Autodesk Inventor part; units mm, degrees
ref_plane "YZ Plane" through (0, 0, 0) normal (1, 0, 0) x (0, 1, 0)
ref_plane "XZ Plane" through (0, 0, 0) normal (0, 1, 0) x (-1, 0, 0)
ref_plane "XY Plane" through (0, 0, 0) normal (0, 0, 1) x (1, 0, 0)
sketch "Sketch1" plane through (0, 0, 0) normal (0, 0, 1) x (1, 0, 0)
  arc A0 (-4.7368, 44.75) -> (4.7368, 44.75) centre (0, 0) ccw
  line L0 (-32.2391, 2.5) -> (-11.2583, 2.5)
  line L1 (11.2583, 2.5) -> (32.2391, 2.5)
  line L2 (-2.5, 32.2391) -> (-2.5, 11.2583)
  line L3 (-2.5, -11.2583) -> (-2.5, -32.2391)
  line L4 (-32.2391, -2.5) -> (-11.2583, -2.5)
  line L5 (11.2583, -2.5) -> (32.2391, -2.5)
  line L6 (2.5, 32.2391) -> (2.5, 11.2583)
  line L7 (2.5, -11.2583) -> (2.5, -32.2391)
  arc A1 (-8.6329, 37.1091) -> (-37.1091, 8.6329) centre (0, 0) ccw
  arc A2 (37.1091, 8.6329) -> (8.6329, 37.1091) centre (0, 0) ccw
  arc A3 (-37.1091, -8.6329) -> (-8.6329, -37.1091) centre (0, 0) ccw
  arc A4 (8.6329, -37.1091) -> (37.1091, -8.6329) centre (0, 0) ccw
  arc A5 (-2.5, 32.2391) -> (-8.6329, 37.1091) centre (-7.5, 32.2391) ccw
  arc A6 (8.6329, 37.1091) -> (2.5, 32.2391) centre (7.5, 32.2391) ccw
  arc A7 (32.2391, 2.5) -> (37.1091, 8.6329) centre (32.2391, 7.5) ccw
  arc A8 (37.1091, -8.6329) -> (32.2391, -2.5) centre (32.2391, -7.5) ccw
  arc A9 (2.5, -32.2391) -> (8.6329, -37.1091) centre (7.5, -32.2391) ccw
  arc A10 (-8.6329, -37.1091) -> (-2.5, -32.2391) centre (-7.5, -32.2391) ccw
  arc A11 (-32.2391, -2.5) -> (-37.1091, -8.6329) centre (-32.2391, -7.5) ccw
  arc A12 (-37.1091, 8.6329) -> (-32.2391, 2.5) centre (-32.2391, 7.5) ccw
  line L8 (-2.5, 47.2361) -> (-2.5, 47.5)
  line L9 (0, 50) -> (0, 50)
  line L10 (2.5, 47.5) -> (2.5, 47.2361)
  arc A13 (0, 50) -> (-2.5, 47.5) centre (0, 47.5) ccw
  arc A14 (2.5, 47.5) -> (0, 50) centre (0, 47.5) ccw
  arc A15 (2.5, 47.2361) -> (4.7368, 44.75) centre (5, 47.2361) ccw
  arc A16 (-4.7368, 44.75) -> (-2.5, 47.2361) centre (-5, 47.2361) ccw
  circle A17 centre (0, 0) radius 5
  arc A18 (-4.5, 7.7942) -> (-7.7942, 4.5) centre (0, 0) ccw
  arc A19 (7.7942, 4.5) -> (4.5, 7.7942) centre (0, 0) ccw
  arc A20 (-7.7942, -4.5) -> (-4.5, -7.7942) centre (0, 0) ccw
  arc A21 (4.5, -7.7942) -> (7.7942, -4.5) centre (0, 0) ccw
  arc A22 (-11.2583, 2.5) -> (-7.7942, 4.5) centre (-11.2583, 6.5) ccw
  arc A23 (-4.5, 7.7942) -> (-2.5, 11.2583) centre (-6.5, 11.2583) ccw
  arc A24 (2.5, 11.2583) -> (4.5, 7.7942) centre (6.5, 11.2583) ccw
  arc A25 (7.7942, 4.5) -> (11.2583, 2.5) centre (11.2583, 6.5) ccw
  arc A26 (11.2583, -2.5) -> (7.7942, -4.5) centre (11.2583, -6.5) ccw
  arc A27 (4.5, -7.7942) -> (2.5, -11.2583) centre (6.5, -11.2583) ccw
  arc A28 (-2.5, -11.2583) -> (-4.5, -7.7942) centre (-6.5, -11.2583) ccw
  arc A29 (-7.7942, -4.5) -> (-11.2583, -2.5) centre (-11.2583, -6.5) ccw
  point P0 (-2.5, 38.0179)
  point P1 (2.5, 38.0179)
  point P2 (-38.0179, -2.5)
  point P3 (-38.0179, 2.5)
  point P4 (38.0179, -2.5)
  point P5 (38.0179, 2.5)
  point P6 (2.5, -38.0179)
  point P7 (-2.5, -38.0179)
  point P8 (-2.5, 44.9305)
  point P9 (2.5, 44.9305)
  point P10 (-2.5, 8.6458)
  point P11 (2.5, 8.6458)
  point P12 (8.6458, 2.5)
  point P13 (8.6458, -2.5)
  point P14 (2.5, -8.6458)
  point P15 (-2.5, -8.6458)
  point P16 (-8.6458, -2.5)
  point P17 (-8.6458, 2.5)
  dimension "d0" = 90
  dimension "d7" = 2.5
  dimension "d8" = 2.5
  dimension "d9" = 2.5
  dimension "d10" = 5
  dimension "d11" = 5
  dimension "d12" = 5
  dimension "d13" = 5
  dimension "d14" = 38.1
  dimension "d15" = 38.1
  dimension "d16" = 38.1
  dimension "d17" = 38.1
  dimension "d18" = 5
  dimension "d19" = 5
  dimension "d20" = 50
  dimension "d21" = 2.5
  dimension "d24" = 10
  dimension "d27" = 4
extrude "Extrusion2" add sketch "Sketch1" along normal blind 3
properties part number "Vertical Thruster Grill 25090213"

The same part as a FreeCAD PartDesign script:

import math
import FreeCAD as App
import Part
import Sketcher

doc = App.newDocument("Part")
body = doc.addObject("PartDesign::Body", "Body")

sketch1 = body.newObject("Sketcher::SketchObject", "Sketch")
sketch1.AttachmentSupport = (doc.getObject("XY_Plane"), [""])
sketch1.MapMode = "FlatFace"
sketch1.addGeometry(Part.ArcOfCircle(Part.Circle(App.Vector(-5, 47.24, 0), App.Vector(0, 0, 1), 2.5), math.radians(-84), math.radians(0)), False)
sketch1.addGeometry(Part.ArcOfCircle(Part.Circle(App.Vector(0, 0, 0), App.Vector(0, 0, 1), 45), math.radians(96), math.radians(444)), False)
sketch1.addGeometry(Part.ArcOfCircle(Part.Circle(App.Vector(5, 47.24, 0), App.Vector(0, 0, 1), 2.5), math.radians(180), math.radians(264)), False)
sketch1.addGeometry(Part.LineSegment(App.Vector(2.5, 47.24, 0), App.Vector(2.5, 47.5, 0)), False)
sketch1.addGeometry(Part.ArcOfCircle(Part.Circle(App.Vector(0, 47.5, 0), App.Vector(0, 0, 1), 2.5), math.radians(0), math.radians(180)), False)
sketch1.addGeometry(Part.LineSegment(App.Vector(-2.5, 47.5, 0), App.Vector(-2.5, 47.24, 0)), False)
sketch1.addGeometry(Part.ArcOfCircle(Part.Circle(App.Vector(-6.5, -11.26, 0), App.Vector(0, 0, 1), 4), math.radians(0), math.radians(60)), False)
sketch1.addGeometry(Part.LineSegment(App.Vector(-2.5, -11.26, 0), App.Vector(-2.5, -32.24, 0)), False)
sketch1.addGeometry(Part.ArcOfCircle(Part.Circle(App.Vector(-7.5, -32.24, 0), App.Vector(0, 0, 1), 5), math.radians(-103), math.radians(0)), False)
sketch1.addGeometry(Part.ArcOfCircle(Part.Circle(App.Vector(0, 0, 0), App.Vector(0, 0, 1), 38.1), math.radians(-167), math.radians(-103)), False)
sketch1.addGeometry(Part.ArcOfCircle(Part.Circle(App.Vector(-32.24, -7.5, 0), App.Vector(0, 0, 1), 5), math.radians(90), math.radians(193)), False)
sketch1.addGeometry(Part.LineSegment(App.Vector(-32.24, -2.5, 0), App.Vector(-11.26, -2.5, 0)), False)
sketch1.addGeometry(Part.ArcOfCircle(Part.Circle(App.Vector(-11.26, -6.5, 0), App.Vector(0, 0, 1), 4), math.radians(30), math.radians(90)), False)
sketch1.addGeometry(Part.ArcOfCircle(Part.Circle(App.Vector(0, 0, 0), App.Vector(0, 0, 1), 9), math.radians(-150), math.radians(-120)), False)
sketch1.addGeometry(Part.ArcOfCircle(Part.Circle(App.Vector(11.26, -6.5, 0), App.Vector(0, 0, 1), 4), math.radians(90), math.radians(150)), False)
sketch1.addGeometry(Part.LineSegment(App.Vector(11.26, -2.5, 0), App.Vector(32.24, -2.5, 0)), False)
sketch1.addGeometry(Part.ArcOfCircle(Part.Circle(App.Vector(32.24, -7.5, 0), App.Vector(0, 0, 1), 5), math.radians(-13), math.radians(90)), False)
sketch1.addGeometry(Part.ArcOfCircle(Part.Circle(App.Vector(0, 0, 0), App.Vector(0, 0, 1), 38.1), math.radians(-77), math.radians(-13)), False)
sketch1.addGeometry(Part.ArcOfCircle(Part.Circle(App.Vector(7.5, -32.24, 0), App.Vector(0, 0, 1), 5), math.radians(180), math.radians(283)), False)
sketch1.addGeometry(Part.LineSegment(App.Vector(2.5, -32.24, 0), App.Vector(2.5, -11.26, 0)), False)
sketch1.addGeometry(Part.ArcOfCircle(Part.Circle(App.Vector(6.5, -11.26, 0), App.Vector(0, 0, 1), 4), math.radians(120), math.radians(180)), False)
sketch1.addGeometry(Part.ArcOfCircle(Part.Circle(App.Vector(0, 0, 0), App.Vector(0, 0, 1), 9), math.radians(-60), math.radians(-30)), False)
sketch1.addGeometry(Part.Circle(App.Vector(0, 0, 0), App.Vector(0, 0, 1), 5), False)
sketch1.addGeometry(Part.LineSegment(App.Vector(-11.26, 2.5, 0), App.Vector(-32.24, 2.5, 0)), False)
sketch1.addGeometry(Part.ArcOfCircle(Part.Circle(App.Vector(-32.24, 7.5, 0), App.Vector(0, 0, 1), 5), math.radians(167), math.radians(270)), False)
sketch1.addGeometry(Part.ArcOfCircle(Part.Circle(App.Vector(0, 0, 0), App.Vector(0, 0, 1), 38.1), math.radians(103), math.radians(167)), False)
sketch1.addGeometry(Part.ArcOfCircle(Part.Circle(App.Vector(-7.5, 32.24, 0), App.Vector(0, 0, 1), 5), math.radians(0), math.radians(103)), False)
sketch1.addGeometry(Part.LineSegment(App.Vector(-2.5, 32.24, 0), App.Vector(-2.5, 11.26, 0)), False)
sketch1.addGeometry(Part.ArcOfCircle(Part.Circle(App.Vector(-6.5, 11.26, 0), App.Vector(0, 0, 1), 4), math.radians(-60), math.radians(0)), False)
sketch1.addGeometry(Part.ArcOfCircle(Part.Circle(App.Vector(0, 0, 0), App.Vector(0, 0, 1), 9), math.radians(120), math.radians(150)), False)
sketch1.addGeometry(Part.ArcOfCircle(Part.Circle(App.Vector(-11.26, 6.5, 0), App.Vector(0, 0, 1), 4), math.radians(-90), math.radians(-30)), False)
sketch1.addGeometry(Part.LineSegment(App.Vector(32.24, 2.5, 0), App.Vector(11.26, 2.5, 0)), False)
sketch1.addGeometry(Part.ArcOfCircle(Part.Circle(App.Vector(11.26, 6.5, 0), App.Vector(0, 0, 1), 4), math.radians(-150), math.radians(-90)), False)
sketch1.addGeometry(Part.ArcOfCircle(Part.Circle(App.Vector(0, 0, 0), App.Vector(0, 0, 1), 9), math.radians(30), math.radians(60)), False)
sketch1.addGeometry(Part.ArcOfCircle(Part.Circle(App.Vector(6.5, 11.26, 0), App.Vector(0, 0, 1), 4), math.radians(180), math.radians(240)), False)
sketch1.addGeometry(Part.LineSegment(App.Vector(2.5, 11.26, 0), App.Vector(2.5, 32.24, 0)), False)
sketch1.addGeometry(Part.ArcOfCircle(Part.Circle(App.Vector(7.5, 32.24, 0), App.Vector(0, 0, 1), 5), math.radians(77), math.radians(180)), False)
sketch1.addGeometry(Part.ArcOfCircle(Part.Circle(App.Vector(0, 0, 0), App.Vector(0, 0, 1), 38.1), math.radians(13), math.radians(77)), False)
sketch1.addGeometry(Part.ArcOfCircle(Part.Circle(App.Vector(32.24, 7.5, 0), App.Vector(0, 0, 1), 5), math.radians(-90), math.radians(13)), False)
sketch1.addConstraint(Sketcher.Constraint("Tangent", 0, 1, 1, 1))
sketch1.addConstraint(Sketcher.Constraint("Tangent", 1, 2, 2, 2))
sketch1.addConstraint(Sketcher.Constraint("Tangent", 2, 1, 3, 1))
sketch1.addConstraint(Sketcher.Constraint("Tangent", 3, 2, 4, 1))
sketch1.addConstraint(Sketcher.Constraint("Tangent", 4, 2, 5, 1))
sketch1.addConstraint(Sketcher.Constraint("Tangent", 5, 2, 0, 2))
sketch1.addConstraint(Sketcher.Constraint("Tangent", 6, 1, 7, 1))
sketch1.addConstraint(Sketcher.Constraint("Tangent", 7, 2, 8, 2))
sketch1.addConstraint(Sketcher.Constraint("Tangent", 8, 1, 9, 2))
sketch1.addConstraint(Sketcher.Constraint("Tangent", 9, 1, 10, 2))
sketch1.addConstraint(Sketcher.Constraint("Tangent", 10, 1, 11, 1))
sketch1.addConstraint(Sketcher.Constraint("Tangent", 11, 2, 12, 2))
sketch1.addConstraint(Sketcher.Constraint("Tangent", 12, 1, 13, 1))
sketch1.addConstraint(Sketcher.Constraint("Tangent", 13, 2, 6, 2))
sketch1.addConstraint(Sketcher.Constraint("Tangent", 14, 1, 15, 1))
sketch1.addConstraint(Sketcher.Constraint("Tangent", 15, 2, 16, 2))
sketch1.addConstraint(Sketcher.Constraint("Tangent", 16, 1, 17, 2))
sketch1.addConstraint(Sketcher.Constraint("Tangent", 17, 1, 18, 2))
sketch1.addConstraint(Sketcher.Constraint("Tangent", 18, 1, 19, 1))
sketch1.addConstraint(Sketcher.Constraint("Tangent", 19, 2, 20, 2))
sketch1.addConstraint(Sketcher.Constraint("Tangent", 20, 1, 21, 1))
sketch1.addConstraint(Sketcher.Constraint("Tangent", 21, 2, 14, 2))
sketch1.addConstraint(Sketcher.Constraint("Tangent", 23, 2, 24, 2))
sketch1.addConstraint(Sketcher.Constraint("Tangent", 24, 1, 25, 2))
sketch1.addConstraint(Sketcher.Constraint("Tangent", 25, 1, 26, 2))
sketch1.addConstraint(Sketcher.Constraint("Tangent", 26, 1, 27, 1))
sketch1.addConstraint(Sketcher.Constraint("Tangent", 27, 2, 28, 2))
sketch1.addConstraint(Sketcher.Constraint("Tangent", 28, 1, 29, 1))
sketch1.addConstraint(Sketcher.Constraint("Tangent", 29, 2, 30, 2))
sketch1.addConstraint(Sketcher.Constraint("Tangent", 30, 1, 23, 1))
sketch1.addConstraint(Sketcher.Constraint("Tangent", 31, 2, 32, 2))
sketch1.addConstraint(Sketcher.Constraint("Tangent", 32, 1, 33, 1))
sketch1.addConstraint(Sketcher.Constraint("Tangent", 33, 2, 34, 2))
sketch1.addConstraint(Sketcher.Constraint("Tangent", 34, 1, 35, 1))
sketch1.addConstraint(Sketcher.Constraint("Tangent", 35, 2, 36, 2))
sketch1.addConstraint(Sketcher.Constraint("Tangent", 36, 1, 37, 2))
sketch1.addConstraint(Sketcher.Constraint("Tangent", 37, 1, 38, 2))
sketch1.addConstraint(Sketcher.Constraint("Tangent", 38, 1, 31, 1))
sketch1.addConstraint(Sketcher.Constraint("Vertical", 3))
sketch1.addConstraint(Sketcher.Constraint("Vertical", 5))
sketch1.addConstraint(Sketcher.Constraint("Vertical", 7))
sketch1.addConstraint(Sketcher.Constraint("Horizontal", 11))
sketch1.addConstraint(Sketcher.Constraint("Horizontal", 15))
sketch1.addConstraint(Sketcher.Constraint("Vertical", 19))
sketch1.addConstraint(Sketcher.Constraint("Horizontal", 23))
sketch1.addConstraint(Sketcher.Constraint("Vertical", 27))
sketch1.addConstraint(Sketcher.Constraint("Horizontal", 31))
sketch1.addConstraint(Sketcher.Constraint("Vertical", 35))
sketch1.addConstraint(Sketcher.Constraint("Coincident", 1, 3, -1, 1))
sketch1.addConstraint(Sketcher.Constraint("Coincident", 9, 3, -1, 1))
sketch1.addConstraint(Sketcher.Constraint("Coincident", 13, 3, -1, 1))
sketch1.addConstraint(Sketcher.Constraint("Coincident", 17, 3, -1, 1))
sketch1.addConstraint(Sketcher.Constraint("Coincident", 21, 3, -1, 1))
sketch1.addConstraint(Sketcher.Constraint("Coincident", 22, 3, -1, 1))
sketch1.addConstraint(Sketcher.Constraint("Coincident", 25, 3, -1, 1))
sketch1.addConstraint(Sketcher.Constraint("Coincident", 29, 3, -1, 1))
sketch1.addConstraint(Sketcher.Constraint("Coincident", 33, 3, -1, 1))
sketch1.addConstraint(Sketcher.Constraint("Coincident", 37, 3, -1, 1))
sketch1.addConstraint(Sketcher.Constraint("Equal", 0, 2))
sketch1.addConstraint(Sketcher.Constraint("Equal", 2, 4))
sketch1.addConstraint(Sketcher.Constraint("Equal", 8, 10))
sketch1.addConstraint(Sketcher.Constraint("Equal", 6, 12))
sketch1.addConstraint(Sketcher.Constraint("Equal", 12, 14))
sketch1.addConstraint(Sketcher.Constraint("Equal", 10, 16))
sketch1.addConstraint(Sketcher.Constraint("Equal", 9, 17))
sketch1.addConstraint(Sketcher.Constraint("Equal", 16, 18))
sketch1.addConstraint(Sketcher.Constraint("Equal", 14, 20))
sketch1.addConstraint(Sketcher.Constraint("Equal", 13, 21))
sketch1.addConstraint(Sketcher.Constraint("Equal", 18, 22))
sketch1.addConstraint(Sketcher.Constraint("Equal", 22, 24))
sketch1.addConstraint(Sketcher.Constraint("Equal", 17, 25))
sketch1.addConstraint(Sketcher.Constraint("Equal", 24, 26))
sketch1.addConstraint(Sketcher.Constraint("Equal", 20, 28))
sketch1.addConstraint(Sketcher.Constraint("Equal", 21, 29))
sketch1.addConstraint(Sketcher.Constraint("Equal", 28, 30))
sketch1.addConstraint(Sketcher.Constraint("Equal", 30, 32))
sketch1.addConstraint(Sketcher.Constraint("Equal", 29, 33))
sketch1.addConstraint(Sketcher.Constraint("Equal", 32, 34))
sketch1.addConstraint(Sketcher.Constraint("Equal", 26, 36))
sketch1.addConstraint(Sketcher.Constraint("Equal", 25, 37))
sketch1.addConstraint(Sketcher.Constraint("Equal", 36, 38))
sketch1.addConstraint(Sketcher.Constraint("PointOnObject", 4, 3, -2))
sketch1.addConstraint(Sketcher.Constraint("Horizontal", 12, 3, 14, 3))
sketch1.addConstraint(Sketcher.Constraint("Horizontal", 8, 3, 18, 3))
sketch1.addConstraint(Sketcher.Constraint("Horizontal", 30, 3, 32, 3))
sketch1.addConstraint(Sketcher.Constraint("Horizontal", 28, 3, 34, 3))
sketch1.addConstraint(Sketcher.Constraint("Vertical", 10, 3, 24, 3))
sketch1.addConstraint(Sketcher.Constraint("Vertical", 8, 3, 26, 3))
sketch1.addConstraint(Sketcher.Constraint("Vertical", 5, 2, 6, 1))
sketch1.addConstraint(Sketcher.Constraint("Equal", 31, 7))
sketch1.addConstraint(Sketcher.Constraint("Diameter", 22, 10.0))
sketch1.addConstraint(Sketcher.Constraint("Radius", 1, 45.0))
sketch1.addConstraint(Sketcher.Constraint("Radius", 6, 4.0))
sketch1.addConstraint(Sketcher.Constraint("Radius", 0, 2.5))
sketch1.addConstraint(Sketcher.Constraint("Radius", 9, 38.1))
sketch1.addConstraint(Sketcher.Constraint("Radius", 13, 9.0))
sketch1.addConstraint(Sketcher.Constraint("DistanceY", -1, 1, 4, 3, 47.5))
pad1 = body.newObject("PartDesign::Pad", "Pad")
pad1.Profile = sketch1
pad1.Length = 3

doc.recompute()
